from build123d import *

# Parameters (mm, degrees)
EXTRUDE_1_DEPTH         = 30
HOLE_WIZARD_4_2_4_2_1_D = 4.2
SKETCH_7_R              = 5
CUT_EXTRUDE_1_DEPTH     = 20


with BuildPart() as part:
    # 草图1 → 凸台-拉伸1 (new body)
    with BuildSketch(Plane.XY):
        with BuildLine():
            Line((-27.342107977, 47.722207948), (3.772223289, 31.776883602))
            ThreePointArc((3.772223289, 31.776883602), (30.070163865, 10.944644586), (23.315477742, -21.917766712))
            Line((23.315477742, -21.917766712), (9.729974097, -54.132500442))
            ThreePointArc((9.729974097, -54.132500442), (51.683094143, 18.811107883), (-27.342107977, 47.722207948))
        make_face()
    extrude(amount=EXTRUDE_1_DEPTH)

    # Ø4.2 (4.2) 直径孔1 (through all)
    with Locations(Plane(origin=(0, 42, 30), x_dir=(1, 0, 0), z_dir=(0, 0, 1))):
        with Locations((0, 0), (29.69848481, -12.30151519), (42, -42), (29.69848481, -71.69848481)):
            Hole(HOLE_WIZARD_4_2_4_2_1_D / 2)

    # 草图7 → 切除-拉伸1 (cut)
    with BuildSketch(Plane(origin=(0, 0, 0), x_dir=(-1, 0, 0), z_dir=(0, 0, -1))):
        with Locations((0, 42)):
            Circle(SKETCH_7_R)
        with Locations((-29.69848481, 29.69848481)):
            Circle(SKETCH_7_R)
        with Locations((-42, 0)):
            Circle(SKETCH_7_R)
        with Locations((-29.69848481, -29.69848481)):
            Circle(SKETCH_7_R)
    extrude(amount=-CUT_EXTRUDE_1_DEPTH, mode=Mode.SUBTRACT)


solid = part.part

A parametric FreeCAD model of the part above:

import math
import FreeCAD as App
import Part
import Sketcher

V = App.Vector

doc = App.newDocument("Part")
body = doc.addObject("PartDesign::Body", "Body")

# Sketch on XY plane
sketch1 = doc.addObject("Sketcher::SketchObject", "Sketch")
body.addObject(sketch1)
sketch1.AttachmentSupport = (doc.XY_Plane, [""])
sketch1.MapMode = "FlatFace"
sketch1.addGeometry(Part.LineSegment(V(-27, 48, 0), V(4, 32, 0)), False)
sketch1.addGeometry(Part.ArcOfCircle(Part.Circle(V(0, 0, 0), V(0, 0, 1), 32), math.radians(-43), math.radians(83)), False)
sketch1.addGeometry(Part.LineSegment(V(23, -22, 0), V(10, -54, 0)), False)
sketch1.addGeometry(Part.ArcOfCircle(Part.Circle(V(0, 0, 0), V(0, 0, 1), 55), math.radians(-80), math.radians(120)), False)
sketch1.addConstraint(Sketcher.Constraint("Coincident", 0, 2, 1, 2))
sketch1.addConstraint(Sketcher.Constraint("Coincident", 1, 1, 2, 1))
sketch1.addConstraint(Sketcher.Constraint("Coincident", 2, 2, 3, 1))
sketch1.addConstraint(Sketcher.Constraint("Coincident", 3, 2, 0, 1))
sketch1.addConstraint(Sketcher.Constraint("Coincident", 1, 3, -1, 1))
sketch1.addConstraint(Sketcher.Constraint("Coincident", 3, 3, -1, 1))
sketch1.addConstraint(Sketcher.Constraint("Equal", 0, 2))
sketch1.addConstraint(Sketcher.Constraint("Radius", 1, 32.0))
sketch1.addConstraint(Sketcher.Constraint("Radius", 3, 55.0))
sketch1.addConstraint(Sketcher.Constraint("DistanceY", 2, 2, -1, 1, 54.1325))
sketch1.addConstraint(Sketcher.Constraint("DistanceY", 1, 1, 0, 2, 53.69465))
sketch1.addConstraint(Sketcher.Constraint("DistanceX", 0, 2, 2, 2, 5.957751))
pad1 = doc.addObject("PartDesign::Pad", "Pad")
body.addObject(pad1)
pad1.Profile = sketch1
pad1.Length = 30

# Sketch on XY plane
sketch2 = doc.addObject("Sketcher::SketchObject", "Sketch001")
body.addObject(sketch2)
sketch2.AttachmentSupport = (doc.XY_Plane, [""])
sketch2.MapMode = "FlatFace"
sketch2.AttachmentOffset = App.Placement(V(0, 0, 30), App.Rotation())
sketch2.addGeometry(Part.Circle(V(0, 42, 0), V(0, 0, 1), 2.1), False)
sketch2.addGeometry(Part.Circle(V(29.7, 29.7, 0), V(0, 0, 1), 2.1), False)
sketch2.addGeometry(Part.Circle(V(42, 0, 0), V(0, 0, 1), 2.1), False)
sketch2.addGeometry(Part.Circle(V(29.7, -29.7, 0), V(0, 0, 1), 2.1), False)
sketch2.addConstraint(Sketcher.Constraint("Equal", 0, 1))
sketch2.addConstraint(Sketcher.Constraint("Equal", 1, 2))
sketch2.addConstraint(Sketcher.Constraint("Equal", 2, 3))
sketch2.addConstraint(Sketcher.Constraint("Symmetric", 1, 3, 3, 3, -1))
sketch2.addConstraint(Sketcher.Constraint("PointOnObject", 0, 3, -2))
sketch2.addConstraint(Sketcher.Constraint("PointOnObject", 2, 3, -1))
sketch2.addConstraint(Sketcher.Constraint("Diameter", 0, 4.2))
sketch2.addConstraint(Sketcher.Constraint("DistanceY", -1, 1, 0, 3, 42.0))
sketch2.addConstraint(Sketcher.Constraint("DistanceX", -1, 1, 2, 3, 42.0))
sketch2.addConstraint(Sketcher.Constraint("DistanceY", 3, 3, 1, 3, 59.39697))
sketch2.addConstraint(Sketcher.Constraint("DistanceX", -1, 1, 1, 3, 29.698485))
doc.recompute()
hole = doc.addObject("PartDesign::Hole", "Hole")
body.addObject(hole)
hole.Profile = sketch2
hole.ThreadType = "None"
hole.Diameter = 4.2
hole.DepthType = "ThroughAll"

# Sketch on XY plane
sketch3 = doc.addObject("Sketcher::SketchObject", "Sketch002")
body.addObject(sketch3)
sketch3.AttachmentSupport = (doc.XY_Plane, [""])
sketch3.MapMode = "FlatFace"
sketch3.addGeometry(Part.Circle(V(0, 42, 0), V(0, 0, 1), 5), False)
sketch3.addGeometry(Part.Circle(V(30, 30, 0), V(0, 0, 1), 5), False)
sketch3.addGeometry(Part.Circle(V(42, 0, 0), V(0, 0, 1), 5), False)
sketch3.addGeometry(Part.Circle(V(30, -30, 0), V(0, 0, 1), 5), False)
sketch3.addConstraint(Sketcher.Constraint("Equal", 0, 1))
sketch3.addConstraint(Sketcher.Constraint("Equal", 1, 2))
sketch3.addConstraint(Sketcher.Constraint("Equal", 2, 3))
sketch3.addConstraint(Sketcher.Constraint("Symmetric", 1, 3, 3, 3, -1))
sketch3.addConstraint(Sketcher.Constraint("PointOnObject", 0, 3, -2))
sketch3.addConstraint(Sketcher.Constraint("PointOnObject", 2, 3, -1))
sketch3.addConstraint(Sketcher.Constraint("Diameter", 0, 10.0))
sketch3.addConstraint(Sketcher.Constraint("DistanceY", -1, 1, 0, 3, 42.0))
sketch3.addConstraint(Sketcher.Constraint("DistanceX", -1, 1, 2, 3, 42.0))
sketch3.addConstraint(Sketcher.Constraint("DistanceY", 3, 3, 1, 3, 59.39697))
sketch3.addConstraint(Sketcher.Constraint("DistanceX", -1, 1, 1, 3, 29.698485))
pocket1 = doc.addObject("PartDesign::Pocket", "Pocket")
body.addObject(pocket1)
pocket1.Profile = sketch3
pocket1.Length = 20
pocket1.Reversed = True

doc.recompute()
